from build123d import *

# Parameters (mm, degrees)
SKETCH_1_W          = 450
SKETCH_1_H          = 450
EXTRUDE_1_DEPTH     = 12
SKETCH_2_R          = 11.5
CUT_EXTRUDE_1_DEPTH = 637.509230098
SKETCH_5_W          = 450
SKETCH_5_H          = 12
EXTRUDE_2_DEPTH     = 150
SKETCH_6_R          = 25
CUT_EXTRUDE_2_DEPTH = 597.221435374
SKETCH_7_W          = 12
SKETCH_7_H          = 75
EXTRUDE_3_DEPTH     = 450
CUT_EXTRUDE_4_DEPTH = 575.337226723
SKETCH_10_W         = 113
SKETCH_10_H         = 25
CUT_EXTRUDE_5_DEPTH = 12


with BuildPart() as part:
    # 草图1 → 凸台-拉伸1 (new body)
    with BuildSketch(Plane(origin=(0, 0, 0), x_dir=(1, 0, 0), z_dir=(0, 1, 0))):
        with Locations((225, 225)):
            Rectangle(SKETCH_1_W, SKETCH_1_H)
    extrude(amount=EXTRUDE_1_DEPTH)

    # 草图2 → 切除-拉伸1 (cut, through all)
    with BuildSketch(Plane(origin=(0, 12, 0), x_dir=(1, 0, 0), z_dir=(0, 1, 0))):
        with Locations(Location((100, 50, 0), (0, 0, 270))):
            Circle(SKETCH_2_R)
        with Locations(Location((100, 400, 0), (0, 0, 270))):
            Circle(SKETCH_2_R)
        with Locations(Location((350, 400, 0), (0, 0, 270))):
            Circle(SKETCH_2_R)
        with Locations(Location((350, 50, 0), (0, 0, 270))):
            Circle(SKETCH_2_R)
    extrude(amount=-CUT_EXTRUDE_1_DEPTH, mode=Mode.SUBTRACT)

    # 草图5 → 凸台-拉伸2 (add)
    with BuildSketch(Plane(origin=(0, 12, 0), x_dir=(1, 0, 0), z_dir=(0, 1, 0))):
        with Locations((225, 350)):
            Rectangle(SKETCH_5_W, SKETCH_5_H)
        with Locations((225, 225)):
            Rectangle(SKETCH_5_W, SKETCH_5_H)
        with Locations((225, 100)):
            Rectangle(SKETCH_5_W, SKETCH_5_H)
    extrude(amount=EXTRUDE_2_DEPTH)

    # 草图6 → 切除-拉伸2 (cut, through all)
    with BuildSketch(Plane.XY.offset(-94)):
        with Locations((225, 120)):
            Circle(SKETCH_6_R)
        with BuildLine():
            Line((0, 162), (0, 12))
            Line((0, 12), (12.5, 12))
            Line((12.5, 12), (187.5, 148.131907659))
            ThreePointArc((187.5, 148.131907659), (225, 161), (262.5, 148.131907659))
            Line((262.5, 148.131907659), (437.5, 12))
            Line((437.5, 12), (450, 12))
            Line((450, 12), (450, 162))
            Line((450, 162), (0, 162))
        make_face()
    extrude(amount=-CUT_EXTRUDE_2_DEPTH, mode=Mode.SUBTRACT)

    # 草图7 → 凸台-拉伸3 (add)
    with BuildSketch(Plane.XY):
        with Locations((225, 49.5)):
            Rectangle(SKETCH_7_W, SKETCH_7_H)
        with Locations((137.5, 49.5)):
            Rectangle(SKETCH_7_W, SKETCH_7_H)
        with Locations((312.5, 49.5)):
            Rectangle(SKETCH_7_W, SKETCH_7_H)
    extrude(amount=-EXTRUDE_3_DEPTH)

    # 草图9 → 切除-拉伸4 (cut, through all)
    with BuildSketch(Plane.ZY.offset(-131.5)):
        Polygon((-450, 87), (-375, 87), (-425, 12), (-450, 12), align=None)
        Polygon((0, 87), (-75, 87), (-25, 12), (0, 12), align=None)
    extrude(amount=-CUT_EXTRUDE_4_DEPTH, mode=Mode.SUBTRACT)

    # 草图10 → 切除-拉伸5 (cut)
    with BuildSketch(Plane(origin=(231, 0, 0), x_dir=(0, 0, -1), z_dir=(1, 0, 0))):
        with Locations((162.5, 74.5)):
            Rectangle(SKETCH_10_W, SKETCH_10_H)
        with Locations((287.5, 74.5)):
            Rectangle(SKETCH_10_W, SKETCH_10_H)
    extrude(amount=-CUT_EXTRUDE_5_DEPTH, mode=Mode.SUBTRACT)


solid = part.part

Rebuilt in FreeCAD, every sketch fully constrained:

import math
import FreeCAD as App
import Part
import Sketcher

doc = App.newDocument("Part")
body = doc.addObject("PartDesign::Body", "Body")

# Sketch on XZ plane
sketch1 = body.newObject("Sketcher::SketchObject", "Sketch")
sketch1.AttachmentSupport = (doc.getObject("XZ_Plane"), [""])
sketch1.MapMode = "FlatFace"
sketch1.addGeometry([
    Part.LineSegment(App.Vector(0, -450, 0), App.Vector(0, 0, 0)),
    Part.LineSegment(App.Vector(0, 0, 0), App.Vector(450, 0, 0)),
    Part.LineSegment(App.Vector(450, 0, 0), App.Vector(450, -450, 0)),
    Part.LineSegment(App.Vector(450, -450, 0), App.Vector(0, -450, 0)),
], False)
sketch1.addConstraint([
    Sketcher.Constraint("Coincident", 0, 2, 1, 1),
    Sketcher.Constraint("Coincident", 1, 2, 2, 1),
    Sketcher.Constraint("Coincident", 2, 2, 3, 1),
    Sketcher.Constraint("Coincident", 3, 2, 0, 1),
    Sketcher.Constraint("Vertical", 0),
    Sketcher.Constraint("Horizontal", 1),
    Sketcher.Constraint("Vertical", 2),
    Sketcher.Constraint("Horizontal", 3),
    Sketcher.Constraint("Coincident", 0, 2, -1, 1),
    Sketcher.Constraint("Equal", 3, 0),
    Sketcher.Constraint("DistanceX", 1, 1, 1, 2, 450.0),
])
pad1 = body.newObject("PartDesign::Pad", "Pad")
pad1.Profile = sketch1
pad1.Length = 12
pad1.Reversed = True

# Sketch on XZ plane
sketch2 = body.newObject("Sketcher::SketchObject", "Sketch001")
sketch2.AttachmentSupport = (doc.getObject("XZ_Plane"), [""])
sketch2.MapMode = "FlatFace"
sketch2.AttachmentOffset = App.Placement(App.Vector(0, 0, -12), App.Rotation())
sketch2.addGeometry([
    Part.Circle(App.Vector(100, -50, 0), App.Vector(0, 0, 1), 12),
    Part.Circle(App.Vector(100, -400, 0), App.Vector(0, 0, 1), 12),
    Part.Circle(App.Vector(350, -400, 0), App.Vector(0, 0, 1), 12),
    Part.Circle(App.Vector(350, -50, 0), App.Vector(0, 0, 1), 12),
], False)
sketch2.addConstraint([
    Sketcher.Constraint("Equal", 0, 1),
    Sketcher.Constraint("Equal", 1, 2),
    Sketcher.Constraint("Equal", 2, 3),
    Sketcher.Constraint("Horizontal", 1, 3, 2, 3),
    Sketcher.Constraint("Horizontal", 0, 3, 3, 3),
    Sketcher.Constraint("Vertical", 0, 3, 1, 3),
    Sketcher.Constraint("Vertical", 2, 3, 3, 3),
    Sketcher.Constraint("Diameter", 0, 23.0),
    Sketcher.Constraint("DistanceX", -1, 1, 0, 3, 100.0),
    Sketcher.Constraint("DistanceY", 0, 3, -1, 1, 50.0),
    Sketcher.Constraint("DistanceY", 1, 3, -1, 1, 400.0),
    Sketcher.Constraint("DistanceX", -1, 1, 2, 3, 350.0),
])
pocket1 = body.newObject("PartDesign::Pocket", "Pocket")
pocket1.Profile = sketch2
pocket1.Type = "ThroughAll"
pocket1.Reversed = True

# Sketch on XZ plane
sketch3 = body.newObject("Sketcher::SketchObject", "Sketch002")
sketch3.AttachmentSupport = (doc.getObject("XZ_Plane"), [""])
sketch3.MapMode = "FlatFace"
sketch3.AttachmentOffset = App.Placement(App.Vector(0, 0, -12), App.Rotation())
sketch3.addGeometry([
    Part.LineSegment(App.Vector(0, -356, 0), App.Vector(0, -344, 0)),  # 0
    Part.LineSegment(App.Vector(0, -344, 0), App.Vector(450, -344, 0)),  # 1
    Part.LineSegment(App.Vector(450, -344, 0), App.Vector(450, -356, 0)),  # 2
    Part.LineSegment(App.Vector(450, -356, 0), App.Vector(0, -356, 0)),  # 3
    Part.LineSegment(App.Vector(0, -231, 0), App.Vector(0, -219, 0)),  # 4
    Part.LineSegment(App.Vector(0, -219, 0), App.Vector(450, -219, 0)),  # 5
    Part.LineSegment(App.Vector(450, -219, 0), App.Vector(450, -231, 0)),  # 6
    Part.LineSegment(App.Vector(450, -231, 0), App.Vector(0, -231, 0)),  # 7
    Part.LineSegment(App.Vector(0, -106, 0), App.Vector(0, -94, 0)),  # 8
    Part.LineSegment(App.Vector(0, -94, 0), App.Vector(450, -94, 0)),  # 9
    Part.LineSegment(App.Vector(450, -94, 0), App.Vector(450, -106, 0)),  # 10
    Part.LineSegment(App.Vector(450, -106, 0), App.Vector(0, -106, 0)),  # 11
], False)
sketch3.addConstraint([
    Sketcher.Constraint("Coincident", 0, 2, 1, 1),
    Sketcher.Constraint("Coincident", 1, 2, 2, 1),
    Sketcher.Constraint("Coincident", 2, 2, 3, 1),
    Sketcher.Constraint("Coincident", 3, 2, 0, 1),
    Sketcher.Constraint("Coincident", 4, 2, 5, 1),
    Sketcher.Constraint("Coincident", 5, 2, 6, 1),
    Sketcher.Constraint("Coincident", 6, 2, 7, 1),
    Sketcher.Constraint("Coincident", 7, 2, 4, 1),
    Sketcher.Constraint("Coincident", 8, 2, 9, 1),
    Sketcher.Constraint("Coincident", 9, 2, 10, 1),
    Sketcher.Constraint("Coincident", 10, 2, 11, 1),
    Sketcher.Constraint("Coincident", 11, 2, 8, 1),
    Sketcher.Constraint("Vertical", 0),
    Sketcher.Constraint("Horizontal", 1),
    Sketcher.Constraint("Vertical", 2),
    Sketcher.Constraint("Horizontal", 3),
    Sketcher.Constraint("Vertical", 4),
    Sketcher.Constraint("Horizontal", 5),
    Sketcher.Constraint("Vertical", 6),
    Sketcher.Constraint("Horizontal", 7),
    Sketcher.Constraint("Vertical", 8),
    Sketcher.Constraint("Horizontal", 9),
    Sketcher.Constraint("Vertical", 10),
    Sketcher.Constraint("Horizontal", 11),
    Sketcher.Constraint("PointOnObject", 0, 2, -2),
    Sketcher.Constraint("PointOnObject", 4, 2, -2),
    Sketcher.Constraint("PointOnObject", 8, 2, -2),
    Sketcher.Constraint("Vertical", 2, 2, 5, 2),
    Sketcher.Constraint("Vertical", 6, 2, 9, 2),
    Sketcher.Constraint("Equal", 2, 4),
    Sketcher.Constraint("Equal", 6, 8),
    Sketcher.Constraint("DistanceX", 1, 1, 1, 2, 450.0),
    Sketcher.Constraint("DistanceY", 0, 1, 0, 2, 12.0),
    Sketcher.Constraint("DistanceY", 0, 2, -1, 1, 344.0),
    Sketcher.Constraint("DistanceY", 4, 2, -1, 1, 219.0),
    Sketcher.Constraint("DistanceY", 8, 2, -1, 1, 94.0),
])
pad2 = body.newObject("PartDesign::Pad", "Pad001")
pad2.Profile = sketch3
pad2.Length = 150
pad2.Reversed = True

# Sketch on XY plane
sketch4 = body.newObject("Sketcher::SketchObject", "Sketch003")
sketch4.AttachmentSupport = (doc.getObject("XY_Plane"), [""])
sketch4.MapMode = "FlatFace"
sketch4.AttachmentOffset = App.Placement(App.Vector(0, 0, -94), App.Rotation())
sketch4.addGeometry([
    Part.Circle(App.Vector(225, 120, 0), App.Vector(0, 0, 1), 25),  # 0
    Part.LineSegment(App.Vector(0, 162, 0), App.Vector(0, 12, 0)),  # 1
    Part.LineSegment(App.Vector(0, 12, 0), App.Vector(12, 12, 0)),  # 2
    Part.LineSegment(App.Vector(12, 12, 0), App.Vector(188, 148, 0)),  # 3
    Part.ArcOfCircle(Part.Circle(App.Vector(225, 100, 0), App.Vector(0, 0, 1), 61), math.radians(52), math.radians(128)),  # 4
    Part.LineSegment(App.Vector(262, 148, 0), App.Vector(438, 12, 0)),  # 5
    Part.LineSegment(App.Vector(438, 12, 0), App.Vector(450, 12, 0)),  # 6
    Part.LineSegment(App.Vector(450, 12, 0), App.Vector(450, 162, 0)),  # 7
    Part.LineSegment(App.Vector(450, 162, 0), App.Vector(0, 162, 0)),  # 8
], False)
sketch4.addConstraint([
    Sketcher.Constraint("Coincident", 1, 2, 2, 1),
    Sketcher.Constraint("Coincident", 2, 2, 3, 1),
    Sketcher.Constraint("Tangent", 3, 2, 4, 2),
    Sketcher.Constraint("Tangent", 4, 1, 5, 1),
    Sketcher.Constraint("Coincident", 5, 2, 6, 1),
    Sketcher.Constraint("Coincident", 6, 2, 7, 1),
    Sketcher.Constraint("Coincident", 7, 2, 8, 1),
    Sketcher.Constraint("Coincident", 8, 2, 1, 1),
    Sketcher.Constraint("Vertical", 1),
    Sketcher.Constraint("Horizontal", 2),
    Sketcher.Constraint("Horizontal", 6),
    Sketcher.Constraint("Vertical", 7),
    Sketcher.Constraint("Horizontal", 8),
    Sketcher.Constraint("PointOnObject", 1, 2, -2),
    Sketcher.Constraint("Horizontal", 3, 2, 4, 1),
    Sketcher.Constraint("Horizontal", 2, 2, 5, 2),
    Sketcher.Constraint("Vertical", 0, 3, 4, 3),
    Sketcher.Constraint("Equal", 2, 6),
    Sketcher.Constraint("Diameter", 0, 50.0),
    Sketcher.Constraint("DistanceX", 8, 2, 8, 1, 450.0),
    Sketcher.Constraint("DistanceY", 1, 2, 1, 1, 150.0),
    Sketcher.Constraint("DistanceX", 2, 1, 2, 2, 12.5),
    Sketcher.Constraint("DistanceY", -1, 1, 0, 3, 120.0),
    Sketcher.Constraint("DistanceY", -1, 1, 1, 2, 12.0),
    Sketcher.Constraint("DistanceX", 2, 2, 3, 2, 175.0),
    Sketcher.Constraint("Radius", 4, 61.075012),
])
pocket2 = body.newObject("PartDesign::Pocket", "Pocket001")
pocket2.Profile = sketch4
pocket2.Type = "ThroughAll"

# Sketch on XY plane
sketch5 = body.newObject("Sketcher::SketchObject", "Sketch004")
sketch5.AttachmentSupport = (doc.getObject("XY_Plane"), [""])
sketch5.MapMode = "FlatFace"
sketch5.addGeometry([
    Part.LineSegment(App.Vector(219, 87, 0), App.Vector(219, 12, 0)),  # 0
    Part.LineSegment(App.Vector(219, 12, 0), App.Vector(231, 12, 0)),  # 1
    Part.LineSegment(App.Vector(231, 12, 0), App.Vector(231, 87, 0)),  # 2
    Part.LineSegment(App.Vector(231, 87, 0), App.Vector(219, 87, 0)),  # 3
    Part.LineSegment(App.Vector(132, 87, 0), App.Vector(132, 12, 0)),  # 4
    Part.LineSegment(App.Vector(132, 12, 0), App.Vector(144, 12, 0)),  # 5
    Part.LineSegment(App.Vector(144, 12, 0), App.Vector(144, 87, 0)),  # 6
    Part.LineSegment(App.Vector(144, 87, 0), App.Vector(132, 87, 0)),  # 7
    Part.LineSegment(App.Vector(306, 87, 0), App.Vector(306, 12, 0)),  # 8
    Part.LineSegment(App.Vector(306, 12, 0), App.Vector(318, 12, 0)),  # 9
    Part.LineSegment(App.Vector(318, 12, 0), App.Vector(318, 87, 0)),  # 10
    Part.LineSegment(App.Vector(318, 87, 0), App.Vector(306, 87, 0)),  # 11
], False)
sketch5.addConstraint([
    Sketcher.Constraint("Coincident", 0, 2, 1, 1),
    Sketcher.Constraint("Coincident", 1, 2, 2, 1),
    Sketcher.Constraint("Coincident", 2, 2, 3, 1),
    Sketcher.Constraint("Coincident", 3, 2, 0, 1),
    Sketcher.Constraint("Coincident", 4, 2, 5, 1),
    Sketcher.Constraint("Coincident", 5, 2, 6, 1),
    Sketcher.Constraint("Coincident", 6, 2, 7, 1),
    Sketcher.Constraint("Coincident", 7, 2, 4, 1),
    Sketcher.Constraint("Coincident", 8, 2, 9, 1),
    Sketcher.Constraint("Coincident", 9, 2, 10, 1),
    Sketcher.Constraint("Coincident", 10, 2, 11, 1),
    Sketcher.Constraint("Coincident", 11, 2, 8, 1),
    Sketcher.Constraint("Vertical", 0),
    Sketcher.Constraint("Horizontal", 1),
    Sketcher.Constraint("Vertical", 2),
    Sketcher.Constraint("Horizontal", 3),
    Sketcher.Constraint("Vertical", 4),
    Sketcher.Constraint("Horizontal", 5),
    Sketcher.Constraint("Vertical", 6),
    Sketcher.Constraint("Horizontal", 7),
    Sketcher.Constraint("Vertical", 8),
    Sketcher.Constraint("Horizontal", 9),
    Sketcher.Constraint("Vertical", 10),
    Sketcher.Constraint("Horizontal", 11),
    Sketcher.Constraint("Horizontal", 1, 2, 4, 2),
    Sketcher.Constraint("Horizontal", 3, 2, 6, 2),
    Sketcher.Constraint("Horizontal", 5, 2, 8, 2),
    Sketcher.Constraint("Horizontal", 7, 2, 10, 2),
    Sketcher.Constraint("Equal", 3, 5),
    Sketcher.Constraint("Equal", 7, 9),
    Sketcher.Constraint("DistanceX", 1, 1, 1, 2, 12.0),
    Sketcher.Constraint("DistanceY", 0, 2, 0, 1, 75.0),
    Sketcher.Constraint("DistanceX", -1, 1, 0, 2, 219.0),
    Sketcher.Constraint("DistanceY", -1, 1, 0, 2, 12.0),
    Sketcher.Constraint("DistanceX", 5, 2, 8, 2, 163.0),
    Sketcher.Constraint("DistanceX", -1, 1, 4, 2, 131.5),
])
pad3 = body.newObject("PartDesign::Pad", "Pad002")
pad3.Profile = sketch5
pad3.Length = 450
pad3.Reversed = True

# Sketch on YZ plane
sketch6 = body.newObject("Sketcher::SketchObject", "Sketch005")
sketch6.AttachmentSupport = (doc.getObject("YZ_Plane"), [""])
sketch6.MapMode = "FlatFace"
sketch6.AttachmentOffset = App.Placement(App.Vector(0, 0, 131.5), App.Rotation())
sketch6.addGeometry([
    Part.LineSegment(App.Vector(87, -375, 0), App.Vector(87, -450, 0)),  # 0
    Part.LineSegment(App.Vector(87, -450, 0), App.Vector(12, -450, 0)),  # 1
    Part.LineSegment(App.Vector(12, -450, 0), App.Vector(12, -425, 0)),  # 2
    Part.LineSegment(App.Vector(12, -425, 0), App.Vector(87, -375, 0)),  # 3
    Part.LineSegment(App.Vector(87, 0, 0), App.Vector(87, -75, 0)),  # 4
    Part.LineSegment(App.Vector(87, -75, 0), App.Vector(12, -25, 0)),  # 5
    Part.LineSegment(App.Vector(12, -25, 0), App.Vector(12, 0, 0)),  # 6
    Part.LineSegment(App.Vector(12, 0, 0), App.Vector(87, 0, 0)),  # 7
], False)
sketch6.addConstraint([
    Sketcher.Constraint("Coincident", 0, 2, 1, 1),
    Sketcher.Constraint("Coincident", 1, 2, 2, 1),
    Sketcher.Constraint("Coincident", 2, 2, 3, 1),
    Sketcher.Constraint("Coincident", 3, 2, 0, 1),
    Sketcher.Constraint("Coincident", 4, 2, 5, 1),
    Sketcher.Constraint("Coincident", 5, 2, 6, 1),
    Sketcher.Constraint("Coincident", 6, 2, 7, 1),
    Sketcher.Constraint("Coincident", 7, 2, 4, 1),
    Sketcher.Constraint("Vertical", 0),
    Sketcher.Constraint("Horizontal", 1),
    Sketcher.Constraint("Vertical", 2),
    Sketcher.Constraint("Vertical", 4),
    Sketcher.Constraint("Vertical", 6),
    Sketcher.Constraint("Horizontal", 7),
    Sketcher.Constraint("PointOnObject", 6, 2, -1),
    Sketcher.Constraint("Vertical", 3, 2, 4, 2),
    Sketcher.Constraint("Vertical", 2, 2, 5, 2),
    Sketcher.Constraint("Equal", 7, 0),
    Sketcher.Constraint("Equal", 0, 4),
    Sketcher.Constraint("Equal", 2, 6),
    Sketcher.Constraint("DistanceX", 1, 2, 1, 1, 75.0),
    Sketcher.Constraint("DistanceY", 2, 1, 2, 2, 25.0),
    Sketcher.Constraint("DistanceX", -1, 1, 0, 2, 87.0),
    Sketcher.Constraint("DistanceY", 0, 2, -1, 1, 450.0),
])
pocket3 = body.newObject("PartDesign::Pocket", "Pocket002")
pocket3.Profile = sketch6
pocket3.Type = "ThroughAll"
pocket3.Reversed = True

# Sketch on YZ plane
sketch7 = body.newObject("Sketcher::SketchObject", "Sketch006")
sketch7.AttachmentSupport = (doc.getObject("YZ_Plane"), [""])
sketch7.MapMode = "FlatFace"
sketch7.AttachmentOffset = App.Placement(App.Vector(0, 0, 231), App.Rotation())
sketch7.addGeometry([
    Part.LineSegment(App.Vector(87, -106, 0), App.Vector(62, -106, 0)),  # 0
    Part.LineSegment(App.Vector(62, -106, 0), App.Vector(62, -219, 0)),  # 1
    Part.LineSegment(App.Vector(62, -219, 0), App.Vector(87, -219, 0)),  # 2
    Part.LineSegment(App.Vector(87, -219, 0), App.Vector(87, -106, 0)),  # 3
    Part.LineSegment(App.Vector(87, -231, 0), App.Vector(62, -231, 0)),  # 4
    Part.LineSegment(App.Vector(62, -231, 0), App.Vector(62, -344, 0)),  # 5
    Part.LineSegment(App.Vector(62, -344, 0), App.Vector(87, -344, 0)),  # 6
    Part.LineSegment(App.Vector(87, -344, 0), App.Vector(87, -231, 0)),  # 7
], False)
sketch7.addConstraint([
    Sketcher.Constraint("Coincident", 0, 2, 1, 1),
    Sketcher.Constraint("Coincident", 1, 2, 2, 1),
    Sketcher.Constraint("Coincident", 2, 2, 3, 1),
    Sketcher.Constraint("Coincident", 3, 2, 0, 1),
    Sketcher.Constraint("Coincident", 4, 2, 5, 1),
    Sketcher.Constraint("Coincident", 5, 2, 6, 1),
    Sketcher.Constraint("Coincident", 6, 2, 7, 1),
    Sketcher.Constraint("Coincident", 7, 2, 4, 1),
    Sketcher.Constraint("Horizontal", 0),
    Sketcher.Constraint("Vertical", 1),
    Sketcher.Constraint("Horizontal", 2),
    Sketcher.Constraint("Vertical", 3),
    Sketcher.Constraint("Horizontal", 4),
    Sketcher.Constraint("Vertical", 5),
    Sketcher.Constraint("Horizontal", 6),
    Sketcher.Constraint("Vertical", 7),
    Sketcher.Constraint("Vertical", 1, 2, 4, 2),
    Sketcher.Constraint("Vertical", 3, 2, 6, 2),
    Sketcher.Constraint("Equal", 3, 5),
    Sketcher.Constraint("DistanceX", 0, 2, 0, 1, 25.0),
    Sketcher.Constraint("DistanceY", 1, 2, 1, 1, 113.0),
    Sketcher.Constraint("DistanceX", -1, 1, 0, 2, 62.0),
    Sketcher.Constraint("DistanceY", 0, 2, -1, 1, 106.0),
    Sketcher.Constraint("DistanceY", 4, 2, -1, 1, 231.0),
])
pocket4 = body.newObject("PartDesign::Pocket", "Pocket003")
pocket4.Profile = sketch7
pocket4.Length = 12

doc.recompute()
